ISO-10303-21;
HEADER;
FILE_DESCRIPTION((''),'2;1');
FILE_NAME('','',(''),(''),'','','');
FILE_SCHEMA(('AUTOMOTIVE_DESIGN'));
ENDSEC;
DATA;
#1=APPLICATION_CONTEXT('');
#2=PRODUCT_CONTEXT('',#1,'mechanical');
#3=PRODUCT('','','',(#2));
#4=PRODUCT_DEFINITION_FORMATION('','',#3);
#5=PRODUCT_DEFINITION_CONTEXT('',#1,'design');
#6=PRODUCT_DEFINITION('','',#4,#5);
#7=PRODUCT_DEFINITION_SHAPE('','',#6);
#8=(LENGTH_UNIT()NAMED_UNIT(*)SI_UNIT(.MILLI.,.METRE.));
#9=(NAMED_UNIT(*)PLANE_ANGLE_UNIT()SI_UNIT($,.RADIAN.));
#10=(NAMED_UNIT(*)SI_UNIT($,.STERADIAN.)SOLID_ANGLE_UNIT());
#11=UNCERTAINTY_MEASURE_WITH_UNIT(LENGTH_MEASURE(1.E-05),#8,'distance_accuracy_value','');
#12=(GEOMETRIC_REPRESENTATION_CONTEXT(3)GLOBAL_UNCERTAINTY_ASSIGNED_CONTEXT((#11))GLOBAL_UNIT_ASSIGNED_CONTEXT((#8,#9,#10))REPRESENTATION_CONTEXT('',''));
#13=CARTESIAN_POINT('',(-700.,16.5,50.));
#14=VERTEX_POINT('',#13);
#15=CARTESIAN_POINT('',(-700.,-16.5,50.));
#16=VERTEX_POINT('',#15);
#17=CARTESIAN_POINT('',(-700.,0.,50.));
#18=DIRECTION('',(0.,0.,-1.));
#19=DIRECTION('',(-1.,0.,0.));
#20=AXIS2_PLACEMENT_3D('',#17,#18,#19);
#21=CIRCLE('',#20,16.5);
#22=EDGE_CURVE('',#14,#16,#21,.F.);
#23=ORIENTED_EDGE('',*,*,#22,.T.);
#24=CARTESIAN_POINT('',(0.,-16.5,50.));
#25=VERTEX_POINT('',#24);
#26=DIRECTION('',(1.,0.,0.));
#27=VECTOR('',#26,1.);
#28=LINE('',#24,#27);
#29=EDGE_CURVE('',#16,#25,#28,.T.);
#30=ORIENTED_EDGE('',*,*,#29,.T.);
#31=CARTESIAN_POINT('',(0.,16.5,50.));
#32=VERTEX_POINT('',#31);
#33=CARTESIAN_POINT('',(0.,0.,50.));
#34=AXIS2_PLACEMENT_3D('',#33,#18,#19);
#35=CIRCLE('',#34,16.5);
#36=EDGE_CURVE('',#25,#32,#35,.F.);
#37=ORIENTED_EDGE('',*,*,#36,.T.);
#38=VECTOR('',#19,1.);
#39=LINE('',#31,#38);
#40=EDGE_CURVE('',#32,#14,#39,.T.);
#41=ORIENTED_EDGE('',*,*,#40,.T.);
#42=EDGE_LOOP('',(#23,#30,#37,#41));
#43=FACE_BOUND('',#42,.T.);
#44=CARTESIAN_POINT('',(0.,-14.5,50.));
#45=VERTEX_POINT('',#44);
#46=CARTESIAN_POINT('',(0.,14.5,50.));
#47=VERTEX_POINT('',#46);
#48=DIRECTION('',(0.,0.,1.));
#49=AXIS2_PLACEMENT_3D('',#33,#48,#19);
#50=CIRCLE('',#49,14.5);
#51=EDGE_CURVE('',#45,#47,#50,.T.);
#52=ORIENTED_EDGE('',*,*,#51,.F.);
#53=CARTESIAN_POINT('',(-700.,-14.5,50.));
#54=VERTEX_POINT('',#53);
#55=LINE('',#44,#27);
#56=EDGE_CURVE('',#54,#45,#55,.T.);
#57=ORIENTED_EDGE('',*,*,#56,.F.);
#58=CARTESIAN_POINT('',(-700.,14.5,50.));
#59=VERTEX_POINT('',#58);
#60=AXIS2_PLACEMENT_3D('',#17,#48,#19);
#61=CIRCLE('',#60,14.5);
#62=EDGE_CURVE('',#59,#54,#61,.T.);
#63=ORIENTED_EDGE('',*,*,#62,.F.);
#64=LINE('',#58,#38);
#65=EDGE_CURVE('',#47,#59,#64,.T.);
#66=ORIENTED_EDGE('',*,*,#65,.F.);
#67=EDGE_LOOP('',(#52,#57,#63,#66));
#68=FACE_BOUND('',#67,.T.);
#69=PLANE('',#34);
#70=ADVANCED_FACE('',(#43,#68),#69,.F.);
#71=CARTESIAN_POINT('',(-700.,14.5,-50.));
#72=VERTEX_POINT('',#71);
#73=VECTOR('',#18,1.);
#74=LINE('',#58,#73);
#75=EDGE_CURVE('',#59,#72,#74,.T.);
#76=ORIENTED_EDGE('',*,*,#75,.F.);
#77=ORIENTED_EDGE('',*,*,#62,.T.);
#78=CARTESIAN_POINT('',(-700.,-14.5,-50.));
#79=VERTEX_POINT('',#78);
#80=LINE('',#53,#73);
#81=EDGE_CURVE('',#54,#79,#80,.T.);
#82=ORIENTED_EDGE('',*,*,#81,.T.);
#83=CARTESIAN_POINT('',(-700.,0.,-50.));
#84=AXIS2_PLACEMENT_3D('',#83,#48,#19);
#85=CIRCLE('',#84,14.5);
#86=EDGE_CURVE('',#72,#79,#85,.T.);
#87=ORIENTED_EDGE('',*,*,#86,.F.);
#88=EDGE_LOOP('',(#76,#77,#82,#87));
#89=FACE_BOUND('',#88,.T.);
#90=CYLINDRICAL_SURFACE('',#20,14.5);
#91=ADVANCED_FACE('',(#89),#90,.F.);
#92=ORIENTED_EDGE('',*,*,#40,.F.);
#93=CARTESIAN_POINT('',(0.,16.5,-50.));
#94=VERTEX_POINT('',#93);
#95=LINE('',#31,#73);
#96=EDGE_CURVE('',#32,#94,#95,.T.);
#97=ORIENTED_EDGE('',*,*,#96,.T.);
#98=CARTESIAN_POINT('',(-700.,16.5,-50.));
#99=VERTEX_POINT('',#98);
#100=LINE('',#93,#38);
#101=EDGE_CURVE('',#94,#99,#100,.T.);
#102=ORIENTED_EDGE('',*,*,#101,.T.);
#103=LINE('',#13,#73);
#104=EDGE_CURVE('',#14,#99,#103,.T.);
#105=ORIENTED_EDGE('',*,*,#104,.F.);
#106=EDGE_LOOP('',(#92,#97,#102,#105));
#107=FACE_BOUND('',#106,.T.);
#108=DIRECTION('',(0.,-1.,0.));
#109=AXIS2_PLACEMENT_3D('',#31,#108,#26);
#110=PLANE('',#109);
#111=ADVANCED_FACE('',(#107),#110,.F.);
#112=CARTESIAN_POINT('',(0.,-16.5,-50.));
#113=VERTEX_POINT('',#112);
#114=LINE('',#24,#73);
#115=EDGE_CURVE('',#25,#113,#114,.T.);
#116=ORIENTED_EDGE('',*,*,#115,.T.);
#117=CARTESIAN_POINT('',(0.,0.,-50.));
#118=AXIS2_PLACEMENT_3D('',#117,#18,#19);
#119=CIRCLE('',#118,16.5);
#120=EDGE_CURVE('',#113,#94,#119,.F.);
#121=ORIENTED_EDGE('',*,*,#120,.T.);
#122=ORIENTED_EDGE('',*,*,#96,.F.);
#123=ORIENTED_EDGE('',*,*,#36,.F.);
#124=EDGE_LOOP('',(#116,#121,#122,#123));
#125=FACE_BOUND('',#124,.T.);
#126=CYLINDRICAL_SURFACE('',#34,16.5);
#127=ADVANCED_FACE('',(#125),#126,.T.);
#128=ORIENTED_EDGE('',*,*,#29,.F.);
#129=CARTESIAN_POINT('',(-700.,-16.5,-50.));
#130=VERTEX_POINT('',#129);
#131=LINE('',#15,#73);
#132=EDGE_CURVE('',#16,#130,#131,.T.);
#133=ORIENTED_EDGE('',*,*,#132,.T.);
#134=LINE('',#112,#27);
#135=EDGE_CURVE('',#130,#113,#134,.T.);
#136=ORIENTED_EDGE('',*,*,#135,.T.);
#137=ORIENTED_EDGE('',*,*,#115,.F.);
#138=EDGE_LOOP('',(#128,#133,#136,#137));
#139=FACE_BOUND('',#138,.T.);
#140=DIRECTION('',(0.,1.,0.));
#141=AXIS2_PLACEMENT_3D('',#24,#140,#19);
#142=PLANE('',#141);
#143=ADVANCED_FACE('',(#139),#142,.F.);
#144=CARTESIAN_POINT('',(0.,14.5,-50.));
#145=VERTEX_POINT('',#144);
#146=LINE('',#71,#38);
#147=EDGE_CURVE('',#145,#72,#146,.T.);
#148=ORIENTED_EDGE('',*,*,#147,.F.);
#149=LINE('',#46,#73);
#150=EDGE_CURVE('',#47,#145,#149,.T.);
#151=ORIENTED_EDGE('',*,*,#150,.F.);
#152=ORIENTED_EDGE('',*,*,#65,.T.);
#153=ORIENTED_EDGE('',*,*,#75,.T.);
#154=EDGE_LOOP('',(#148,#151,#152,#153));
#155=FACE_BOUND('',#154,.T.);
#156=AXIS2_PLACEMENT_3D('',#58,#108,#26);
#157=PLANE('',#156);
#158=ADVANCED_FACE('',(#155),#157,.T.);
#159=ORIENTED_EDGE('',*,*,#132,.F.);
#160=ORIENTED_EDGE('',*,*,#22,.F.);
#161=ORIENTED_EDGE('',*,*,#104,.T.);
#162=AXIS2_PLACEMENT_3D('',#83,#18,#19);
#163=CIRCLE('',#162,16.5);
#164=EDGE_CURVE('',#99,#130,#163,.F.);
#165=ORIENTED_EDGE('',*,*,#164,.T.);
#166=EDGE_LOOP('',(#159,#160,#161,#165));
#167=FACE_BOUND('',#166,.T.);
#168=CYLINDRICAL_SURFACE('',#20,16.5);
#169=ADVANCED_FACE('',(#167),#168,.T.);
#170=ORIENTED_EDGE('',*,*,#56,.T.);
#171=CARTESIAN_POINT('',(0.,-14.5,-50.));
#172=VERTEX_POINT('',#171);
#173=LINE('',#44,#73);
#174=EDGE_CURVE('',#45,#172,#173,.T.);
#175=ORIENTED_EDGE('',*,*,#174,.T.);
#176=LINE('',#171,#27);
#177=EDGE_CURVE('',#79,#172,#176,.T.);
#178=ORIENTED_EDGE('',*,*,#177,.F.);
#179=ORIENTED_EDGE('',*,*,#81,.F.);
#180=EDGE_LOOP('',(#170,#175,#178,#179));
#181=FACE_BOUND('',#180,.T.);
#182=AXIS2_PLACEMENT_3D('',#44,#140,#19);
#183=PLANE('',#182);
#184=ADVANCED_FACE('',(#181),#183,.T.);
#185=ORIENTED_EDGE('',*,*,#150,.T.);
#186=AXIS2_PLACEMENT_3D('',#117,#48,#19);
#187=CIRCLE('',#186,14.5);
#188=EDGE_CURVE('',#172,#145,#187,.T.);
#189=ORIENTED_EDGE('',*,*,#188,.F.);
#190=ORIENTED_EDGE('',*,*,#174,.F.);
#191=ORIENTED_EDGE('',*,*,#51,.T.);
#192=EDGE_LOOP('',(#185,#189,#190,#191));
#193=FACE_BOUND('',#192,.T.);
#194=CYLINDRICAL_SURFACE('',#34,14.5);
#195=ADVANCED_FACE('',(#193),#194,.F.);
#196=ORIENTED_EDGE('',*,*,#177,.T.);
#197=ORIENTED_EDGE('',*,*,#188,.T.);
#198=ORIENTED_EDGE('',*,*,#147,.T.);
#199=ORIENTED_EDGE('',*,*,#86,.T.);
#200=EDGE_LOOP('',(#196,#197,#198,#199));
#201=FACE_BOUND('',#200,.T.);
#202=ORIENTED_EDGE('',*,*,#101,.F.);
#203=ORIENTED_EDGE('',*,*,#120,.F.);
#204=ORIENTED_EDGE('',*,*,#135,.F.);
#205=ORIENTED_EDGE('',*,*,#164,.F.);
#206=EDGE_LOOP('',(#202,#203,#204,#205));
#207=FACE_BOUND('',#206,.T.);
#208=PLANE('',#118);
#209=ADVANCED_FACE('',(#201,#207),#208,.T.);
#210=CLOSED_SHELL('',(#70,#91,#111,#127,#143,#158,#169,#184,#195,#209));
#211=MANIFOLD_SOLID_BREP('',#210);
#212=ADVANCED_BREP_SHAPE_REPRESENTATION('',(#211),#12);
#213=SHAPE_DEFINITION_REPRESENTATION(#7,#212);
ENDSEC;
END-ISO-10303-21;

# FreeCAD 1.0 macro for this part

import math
import FreeCAD as App
import Part
import Sketcher

V = App.Vector

doc = App.newDocument("Part")
body = doc.addObject("PartDesign::Body", "Body")

# Sketch on XY plane
sketch1 = body.newObject("Sketcher::SketchObject", "Sketch")
sketch1.AttachmentSupport = (doc.getObject("XY_Plane"), [""])
sketch1.MapMode = "FlatFace"
sketch1.addGeometry(Part.LineSegment(V(0, 16.5, 0), V(-700, 16.5, 0)), False)
sketch1.addGeometry(Part.ArcOfCircle(Part.Circle(V(-700, 0, 0), V(0, 0, 1), 16.5), math.radians(90), math.radians(270)), False)
sketch1.addGeometry(Part.LineSegment(V(-700, -16.5, 0), V(0, -16.5, 0)), False)
sketch1.addGeometry(Part.ArcOfCircle(Part.Circle(V(0, 0, 0), V(0, 0, 1), 16.5), math.radians(-90), math.radians(90)), False)
sketch1.addGeometry(Part.LineSegment(V(-700, 14.5, 0), V(0, 14.5, 0)), False)
sketch1.addGeometry(Part.ArcOfCircle(Part.Circle(V(0, 0, 0), V(0, 0, 1), 14.5), math.radians(-90), math.radians(90)), False)
sketch1.addGeometry(Part.LineSegment(V(0, -14.5, 0), V(-700, -14.5, 0)), False)
sketch1.addGeometry(Part.ArcOfCircle(Part.Circle(V(-700, 0, 0), V(0, 0, 1), 14.5), math.radians(90), math.radians(270)), False)
sketch1.addConstraint(Sketcher.Constraint("Tangent", 0, 2, 1, 1))
sketch1.addConstraint(Sketcher.Constraint("Tangent", 1, 2, 2, 1))
sketch1.addConstraint(Sketcher.Constraint("Tangent", 2, 2, 3, 1))
sketch1.addConstraint(Sketcher.Constraint("Tangent", 3, 2, 0, 1))
sketch1.addConstraint(Sketcher.Constraint("Tangent", 4, 2, 5, 2))
sketch1.addConstraint(Sketcher.Constraint("Tangent", 5, 1, 6, 1))
sketch1.addConstraint(Sketcher.Constraint("Tangent", 6, 2, 7, 2))
sketch1.addConstraint(Sketcher.Constraint("Tangent", 7, 1, 4, 1))
sketch1.addConstraint(Sketcher.Constraint("Horizontal", 0))
sketch1.addConstraint(Sketcher.Constraint("Horizontal", 2))
sketch1.addConstraint(Sketcher.Constraint("Horizontal", 4))
sketch1.addConstraint(Sketcher.Constraint("Horizontal", 6))
sketch1.addConstraint(Sketcher.Constraint("Coincident", 3, 3, -1, 1))
sketch1.addConstraint(Sketcher.Constraint("Coincident", 5, 3, -1, 1))
sketch1.addConstraint(Sketcher.Constraint("Vertical", 7, 3, 0, 2))
sketch1.addConstraint(Sketcher.Constraint("Radius", 1, 16.5))
sketch1.addConstraint(Sketcher.Constraint("Radius", 5, 14.5))
sketch1.addConstraint(Sketcher.Constraint("DistanceX", 0, 2, 0, 1, 700.0))
pad1 = body.newObject("PartDesign::Pad", "Pad")
pad1.Profile = sketch1
pad1.Length = 100
pad1.Midplane = True

doc.recompute()
